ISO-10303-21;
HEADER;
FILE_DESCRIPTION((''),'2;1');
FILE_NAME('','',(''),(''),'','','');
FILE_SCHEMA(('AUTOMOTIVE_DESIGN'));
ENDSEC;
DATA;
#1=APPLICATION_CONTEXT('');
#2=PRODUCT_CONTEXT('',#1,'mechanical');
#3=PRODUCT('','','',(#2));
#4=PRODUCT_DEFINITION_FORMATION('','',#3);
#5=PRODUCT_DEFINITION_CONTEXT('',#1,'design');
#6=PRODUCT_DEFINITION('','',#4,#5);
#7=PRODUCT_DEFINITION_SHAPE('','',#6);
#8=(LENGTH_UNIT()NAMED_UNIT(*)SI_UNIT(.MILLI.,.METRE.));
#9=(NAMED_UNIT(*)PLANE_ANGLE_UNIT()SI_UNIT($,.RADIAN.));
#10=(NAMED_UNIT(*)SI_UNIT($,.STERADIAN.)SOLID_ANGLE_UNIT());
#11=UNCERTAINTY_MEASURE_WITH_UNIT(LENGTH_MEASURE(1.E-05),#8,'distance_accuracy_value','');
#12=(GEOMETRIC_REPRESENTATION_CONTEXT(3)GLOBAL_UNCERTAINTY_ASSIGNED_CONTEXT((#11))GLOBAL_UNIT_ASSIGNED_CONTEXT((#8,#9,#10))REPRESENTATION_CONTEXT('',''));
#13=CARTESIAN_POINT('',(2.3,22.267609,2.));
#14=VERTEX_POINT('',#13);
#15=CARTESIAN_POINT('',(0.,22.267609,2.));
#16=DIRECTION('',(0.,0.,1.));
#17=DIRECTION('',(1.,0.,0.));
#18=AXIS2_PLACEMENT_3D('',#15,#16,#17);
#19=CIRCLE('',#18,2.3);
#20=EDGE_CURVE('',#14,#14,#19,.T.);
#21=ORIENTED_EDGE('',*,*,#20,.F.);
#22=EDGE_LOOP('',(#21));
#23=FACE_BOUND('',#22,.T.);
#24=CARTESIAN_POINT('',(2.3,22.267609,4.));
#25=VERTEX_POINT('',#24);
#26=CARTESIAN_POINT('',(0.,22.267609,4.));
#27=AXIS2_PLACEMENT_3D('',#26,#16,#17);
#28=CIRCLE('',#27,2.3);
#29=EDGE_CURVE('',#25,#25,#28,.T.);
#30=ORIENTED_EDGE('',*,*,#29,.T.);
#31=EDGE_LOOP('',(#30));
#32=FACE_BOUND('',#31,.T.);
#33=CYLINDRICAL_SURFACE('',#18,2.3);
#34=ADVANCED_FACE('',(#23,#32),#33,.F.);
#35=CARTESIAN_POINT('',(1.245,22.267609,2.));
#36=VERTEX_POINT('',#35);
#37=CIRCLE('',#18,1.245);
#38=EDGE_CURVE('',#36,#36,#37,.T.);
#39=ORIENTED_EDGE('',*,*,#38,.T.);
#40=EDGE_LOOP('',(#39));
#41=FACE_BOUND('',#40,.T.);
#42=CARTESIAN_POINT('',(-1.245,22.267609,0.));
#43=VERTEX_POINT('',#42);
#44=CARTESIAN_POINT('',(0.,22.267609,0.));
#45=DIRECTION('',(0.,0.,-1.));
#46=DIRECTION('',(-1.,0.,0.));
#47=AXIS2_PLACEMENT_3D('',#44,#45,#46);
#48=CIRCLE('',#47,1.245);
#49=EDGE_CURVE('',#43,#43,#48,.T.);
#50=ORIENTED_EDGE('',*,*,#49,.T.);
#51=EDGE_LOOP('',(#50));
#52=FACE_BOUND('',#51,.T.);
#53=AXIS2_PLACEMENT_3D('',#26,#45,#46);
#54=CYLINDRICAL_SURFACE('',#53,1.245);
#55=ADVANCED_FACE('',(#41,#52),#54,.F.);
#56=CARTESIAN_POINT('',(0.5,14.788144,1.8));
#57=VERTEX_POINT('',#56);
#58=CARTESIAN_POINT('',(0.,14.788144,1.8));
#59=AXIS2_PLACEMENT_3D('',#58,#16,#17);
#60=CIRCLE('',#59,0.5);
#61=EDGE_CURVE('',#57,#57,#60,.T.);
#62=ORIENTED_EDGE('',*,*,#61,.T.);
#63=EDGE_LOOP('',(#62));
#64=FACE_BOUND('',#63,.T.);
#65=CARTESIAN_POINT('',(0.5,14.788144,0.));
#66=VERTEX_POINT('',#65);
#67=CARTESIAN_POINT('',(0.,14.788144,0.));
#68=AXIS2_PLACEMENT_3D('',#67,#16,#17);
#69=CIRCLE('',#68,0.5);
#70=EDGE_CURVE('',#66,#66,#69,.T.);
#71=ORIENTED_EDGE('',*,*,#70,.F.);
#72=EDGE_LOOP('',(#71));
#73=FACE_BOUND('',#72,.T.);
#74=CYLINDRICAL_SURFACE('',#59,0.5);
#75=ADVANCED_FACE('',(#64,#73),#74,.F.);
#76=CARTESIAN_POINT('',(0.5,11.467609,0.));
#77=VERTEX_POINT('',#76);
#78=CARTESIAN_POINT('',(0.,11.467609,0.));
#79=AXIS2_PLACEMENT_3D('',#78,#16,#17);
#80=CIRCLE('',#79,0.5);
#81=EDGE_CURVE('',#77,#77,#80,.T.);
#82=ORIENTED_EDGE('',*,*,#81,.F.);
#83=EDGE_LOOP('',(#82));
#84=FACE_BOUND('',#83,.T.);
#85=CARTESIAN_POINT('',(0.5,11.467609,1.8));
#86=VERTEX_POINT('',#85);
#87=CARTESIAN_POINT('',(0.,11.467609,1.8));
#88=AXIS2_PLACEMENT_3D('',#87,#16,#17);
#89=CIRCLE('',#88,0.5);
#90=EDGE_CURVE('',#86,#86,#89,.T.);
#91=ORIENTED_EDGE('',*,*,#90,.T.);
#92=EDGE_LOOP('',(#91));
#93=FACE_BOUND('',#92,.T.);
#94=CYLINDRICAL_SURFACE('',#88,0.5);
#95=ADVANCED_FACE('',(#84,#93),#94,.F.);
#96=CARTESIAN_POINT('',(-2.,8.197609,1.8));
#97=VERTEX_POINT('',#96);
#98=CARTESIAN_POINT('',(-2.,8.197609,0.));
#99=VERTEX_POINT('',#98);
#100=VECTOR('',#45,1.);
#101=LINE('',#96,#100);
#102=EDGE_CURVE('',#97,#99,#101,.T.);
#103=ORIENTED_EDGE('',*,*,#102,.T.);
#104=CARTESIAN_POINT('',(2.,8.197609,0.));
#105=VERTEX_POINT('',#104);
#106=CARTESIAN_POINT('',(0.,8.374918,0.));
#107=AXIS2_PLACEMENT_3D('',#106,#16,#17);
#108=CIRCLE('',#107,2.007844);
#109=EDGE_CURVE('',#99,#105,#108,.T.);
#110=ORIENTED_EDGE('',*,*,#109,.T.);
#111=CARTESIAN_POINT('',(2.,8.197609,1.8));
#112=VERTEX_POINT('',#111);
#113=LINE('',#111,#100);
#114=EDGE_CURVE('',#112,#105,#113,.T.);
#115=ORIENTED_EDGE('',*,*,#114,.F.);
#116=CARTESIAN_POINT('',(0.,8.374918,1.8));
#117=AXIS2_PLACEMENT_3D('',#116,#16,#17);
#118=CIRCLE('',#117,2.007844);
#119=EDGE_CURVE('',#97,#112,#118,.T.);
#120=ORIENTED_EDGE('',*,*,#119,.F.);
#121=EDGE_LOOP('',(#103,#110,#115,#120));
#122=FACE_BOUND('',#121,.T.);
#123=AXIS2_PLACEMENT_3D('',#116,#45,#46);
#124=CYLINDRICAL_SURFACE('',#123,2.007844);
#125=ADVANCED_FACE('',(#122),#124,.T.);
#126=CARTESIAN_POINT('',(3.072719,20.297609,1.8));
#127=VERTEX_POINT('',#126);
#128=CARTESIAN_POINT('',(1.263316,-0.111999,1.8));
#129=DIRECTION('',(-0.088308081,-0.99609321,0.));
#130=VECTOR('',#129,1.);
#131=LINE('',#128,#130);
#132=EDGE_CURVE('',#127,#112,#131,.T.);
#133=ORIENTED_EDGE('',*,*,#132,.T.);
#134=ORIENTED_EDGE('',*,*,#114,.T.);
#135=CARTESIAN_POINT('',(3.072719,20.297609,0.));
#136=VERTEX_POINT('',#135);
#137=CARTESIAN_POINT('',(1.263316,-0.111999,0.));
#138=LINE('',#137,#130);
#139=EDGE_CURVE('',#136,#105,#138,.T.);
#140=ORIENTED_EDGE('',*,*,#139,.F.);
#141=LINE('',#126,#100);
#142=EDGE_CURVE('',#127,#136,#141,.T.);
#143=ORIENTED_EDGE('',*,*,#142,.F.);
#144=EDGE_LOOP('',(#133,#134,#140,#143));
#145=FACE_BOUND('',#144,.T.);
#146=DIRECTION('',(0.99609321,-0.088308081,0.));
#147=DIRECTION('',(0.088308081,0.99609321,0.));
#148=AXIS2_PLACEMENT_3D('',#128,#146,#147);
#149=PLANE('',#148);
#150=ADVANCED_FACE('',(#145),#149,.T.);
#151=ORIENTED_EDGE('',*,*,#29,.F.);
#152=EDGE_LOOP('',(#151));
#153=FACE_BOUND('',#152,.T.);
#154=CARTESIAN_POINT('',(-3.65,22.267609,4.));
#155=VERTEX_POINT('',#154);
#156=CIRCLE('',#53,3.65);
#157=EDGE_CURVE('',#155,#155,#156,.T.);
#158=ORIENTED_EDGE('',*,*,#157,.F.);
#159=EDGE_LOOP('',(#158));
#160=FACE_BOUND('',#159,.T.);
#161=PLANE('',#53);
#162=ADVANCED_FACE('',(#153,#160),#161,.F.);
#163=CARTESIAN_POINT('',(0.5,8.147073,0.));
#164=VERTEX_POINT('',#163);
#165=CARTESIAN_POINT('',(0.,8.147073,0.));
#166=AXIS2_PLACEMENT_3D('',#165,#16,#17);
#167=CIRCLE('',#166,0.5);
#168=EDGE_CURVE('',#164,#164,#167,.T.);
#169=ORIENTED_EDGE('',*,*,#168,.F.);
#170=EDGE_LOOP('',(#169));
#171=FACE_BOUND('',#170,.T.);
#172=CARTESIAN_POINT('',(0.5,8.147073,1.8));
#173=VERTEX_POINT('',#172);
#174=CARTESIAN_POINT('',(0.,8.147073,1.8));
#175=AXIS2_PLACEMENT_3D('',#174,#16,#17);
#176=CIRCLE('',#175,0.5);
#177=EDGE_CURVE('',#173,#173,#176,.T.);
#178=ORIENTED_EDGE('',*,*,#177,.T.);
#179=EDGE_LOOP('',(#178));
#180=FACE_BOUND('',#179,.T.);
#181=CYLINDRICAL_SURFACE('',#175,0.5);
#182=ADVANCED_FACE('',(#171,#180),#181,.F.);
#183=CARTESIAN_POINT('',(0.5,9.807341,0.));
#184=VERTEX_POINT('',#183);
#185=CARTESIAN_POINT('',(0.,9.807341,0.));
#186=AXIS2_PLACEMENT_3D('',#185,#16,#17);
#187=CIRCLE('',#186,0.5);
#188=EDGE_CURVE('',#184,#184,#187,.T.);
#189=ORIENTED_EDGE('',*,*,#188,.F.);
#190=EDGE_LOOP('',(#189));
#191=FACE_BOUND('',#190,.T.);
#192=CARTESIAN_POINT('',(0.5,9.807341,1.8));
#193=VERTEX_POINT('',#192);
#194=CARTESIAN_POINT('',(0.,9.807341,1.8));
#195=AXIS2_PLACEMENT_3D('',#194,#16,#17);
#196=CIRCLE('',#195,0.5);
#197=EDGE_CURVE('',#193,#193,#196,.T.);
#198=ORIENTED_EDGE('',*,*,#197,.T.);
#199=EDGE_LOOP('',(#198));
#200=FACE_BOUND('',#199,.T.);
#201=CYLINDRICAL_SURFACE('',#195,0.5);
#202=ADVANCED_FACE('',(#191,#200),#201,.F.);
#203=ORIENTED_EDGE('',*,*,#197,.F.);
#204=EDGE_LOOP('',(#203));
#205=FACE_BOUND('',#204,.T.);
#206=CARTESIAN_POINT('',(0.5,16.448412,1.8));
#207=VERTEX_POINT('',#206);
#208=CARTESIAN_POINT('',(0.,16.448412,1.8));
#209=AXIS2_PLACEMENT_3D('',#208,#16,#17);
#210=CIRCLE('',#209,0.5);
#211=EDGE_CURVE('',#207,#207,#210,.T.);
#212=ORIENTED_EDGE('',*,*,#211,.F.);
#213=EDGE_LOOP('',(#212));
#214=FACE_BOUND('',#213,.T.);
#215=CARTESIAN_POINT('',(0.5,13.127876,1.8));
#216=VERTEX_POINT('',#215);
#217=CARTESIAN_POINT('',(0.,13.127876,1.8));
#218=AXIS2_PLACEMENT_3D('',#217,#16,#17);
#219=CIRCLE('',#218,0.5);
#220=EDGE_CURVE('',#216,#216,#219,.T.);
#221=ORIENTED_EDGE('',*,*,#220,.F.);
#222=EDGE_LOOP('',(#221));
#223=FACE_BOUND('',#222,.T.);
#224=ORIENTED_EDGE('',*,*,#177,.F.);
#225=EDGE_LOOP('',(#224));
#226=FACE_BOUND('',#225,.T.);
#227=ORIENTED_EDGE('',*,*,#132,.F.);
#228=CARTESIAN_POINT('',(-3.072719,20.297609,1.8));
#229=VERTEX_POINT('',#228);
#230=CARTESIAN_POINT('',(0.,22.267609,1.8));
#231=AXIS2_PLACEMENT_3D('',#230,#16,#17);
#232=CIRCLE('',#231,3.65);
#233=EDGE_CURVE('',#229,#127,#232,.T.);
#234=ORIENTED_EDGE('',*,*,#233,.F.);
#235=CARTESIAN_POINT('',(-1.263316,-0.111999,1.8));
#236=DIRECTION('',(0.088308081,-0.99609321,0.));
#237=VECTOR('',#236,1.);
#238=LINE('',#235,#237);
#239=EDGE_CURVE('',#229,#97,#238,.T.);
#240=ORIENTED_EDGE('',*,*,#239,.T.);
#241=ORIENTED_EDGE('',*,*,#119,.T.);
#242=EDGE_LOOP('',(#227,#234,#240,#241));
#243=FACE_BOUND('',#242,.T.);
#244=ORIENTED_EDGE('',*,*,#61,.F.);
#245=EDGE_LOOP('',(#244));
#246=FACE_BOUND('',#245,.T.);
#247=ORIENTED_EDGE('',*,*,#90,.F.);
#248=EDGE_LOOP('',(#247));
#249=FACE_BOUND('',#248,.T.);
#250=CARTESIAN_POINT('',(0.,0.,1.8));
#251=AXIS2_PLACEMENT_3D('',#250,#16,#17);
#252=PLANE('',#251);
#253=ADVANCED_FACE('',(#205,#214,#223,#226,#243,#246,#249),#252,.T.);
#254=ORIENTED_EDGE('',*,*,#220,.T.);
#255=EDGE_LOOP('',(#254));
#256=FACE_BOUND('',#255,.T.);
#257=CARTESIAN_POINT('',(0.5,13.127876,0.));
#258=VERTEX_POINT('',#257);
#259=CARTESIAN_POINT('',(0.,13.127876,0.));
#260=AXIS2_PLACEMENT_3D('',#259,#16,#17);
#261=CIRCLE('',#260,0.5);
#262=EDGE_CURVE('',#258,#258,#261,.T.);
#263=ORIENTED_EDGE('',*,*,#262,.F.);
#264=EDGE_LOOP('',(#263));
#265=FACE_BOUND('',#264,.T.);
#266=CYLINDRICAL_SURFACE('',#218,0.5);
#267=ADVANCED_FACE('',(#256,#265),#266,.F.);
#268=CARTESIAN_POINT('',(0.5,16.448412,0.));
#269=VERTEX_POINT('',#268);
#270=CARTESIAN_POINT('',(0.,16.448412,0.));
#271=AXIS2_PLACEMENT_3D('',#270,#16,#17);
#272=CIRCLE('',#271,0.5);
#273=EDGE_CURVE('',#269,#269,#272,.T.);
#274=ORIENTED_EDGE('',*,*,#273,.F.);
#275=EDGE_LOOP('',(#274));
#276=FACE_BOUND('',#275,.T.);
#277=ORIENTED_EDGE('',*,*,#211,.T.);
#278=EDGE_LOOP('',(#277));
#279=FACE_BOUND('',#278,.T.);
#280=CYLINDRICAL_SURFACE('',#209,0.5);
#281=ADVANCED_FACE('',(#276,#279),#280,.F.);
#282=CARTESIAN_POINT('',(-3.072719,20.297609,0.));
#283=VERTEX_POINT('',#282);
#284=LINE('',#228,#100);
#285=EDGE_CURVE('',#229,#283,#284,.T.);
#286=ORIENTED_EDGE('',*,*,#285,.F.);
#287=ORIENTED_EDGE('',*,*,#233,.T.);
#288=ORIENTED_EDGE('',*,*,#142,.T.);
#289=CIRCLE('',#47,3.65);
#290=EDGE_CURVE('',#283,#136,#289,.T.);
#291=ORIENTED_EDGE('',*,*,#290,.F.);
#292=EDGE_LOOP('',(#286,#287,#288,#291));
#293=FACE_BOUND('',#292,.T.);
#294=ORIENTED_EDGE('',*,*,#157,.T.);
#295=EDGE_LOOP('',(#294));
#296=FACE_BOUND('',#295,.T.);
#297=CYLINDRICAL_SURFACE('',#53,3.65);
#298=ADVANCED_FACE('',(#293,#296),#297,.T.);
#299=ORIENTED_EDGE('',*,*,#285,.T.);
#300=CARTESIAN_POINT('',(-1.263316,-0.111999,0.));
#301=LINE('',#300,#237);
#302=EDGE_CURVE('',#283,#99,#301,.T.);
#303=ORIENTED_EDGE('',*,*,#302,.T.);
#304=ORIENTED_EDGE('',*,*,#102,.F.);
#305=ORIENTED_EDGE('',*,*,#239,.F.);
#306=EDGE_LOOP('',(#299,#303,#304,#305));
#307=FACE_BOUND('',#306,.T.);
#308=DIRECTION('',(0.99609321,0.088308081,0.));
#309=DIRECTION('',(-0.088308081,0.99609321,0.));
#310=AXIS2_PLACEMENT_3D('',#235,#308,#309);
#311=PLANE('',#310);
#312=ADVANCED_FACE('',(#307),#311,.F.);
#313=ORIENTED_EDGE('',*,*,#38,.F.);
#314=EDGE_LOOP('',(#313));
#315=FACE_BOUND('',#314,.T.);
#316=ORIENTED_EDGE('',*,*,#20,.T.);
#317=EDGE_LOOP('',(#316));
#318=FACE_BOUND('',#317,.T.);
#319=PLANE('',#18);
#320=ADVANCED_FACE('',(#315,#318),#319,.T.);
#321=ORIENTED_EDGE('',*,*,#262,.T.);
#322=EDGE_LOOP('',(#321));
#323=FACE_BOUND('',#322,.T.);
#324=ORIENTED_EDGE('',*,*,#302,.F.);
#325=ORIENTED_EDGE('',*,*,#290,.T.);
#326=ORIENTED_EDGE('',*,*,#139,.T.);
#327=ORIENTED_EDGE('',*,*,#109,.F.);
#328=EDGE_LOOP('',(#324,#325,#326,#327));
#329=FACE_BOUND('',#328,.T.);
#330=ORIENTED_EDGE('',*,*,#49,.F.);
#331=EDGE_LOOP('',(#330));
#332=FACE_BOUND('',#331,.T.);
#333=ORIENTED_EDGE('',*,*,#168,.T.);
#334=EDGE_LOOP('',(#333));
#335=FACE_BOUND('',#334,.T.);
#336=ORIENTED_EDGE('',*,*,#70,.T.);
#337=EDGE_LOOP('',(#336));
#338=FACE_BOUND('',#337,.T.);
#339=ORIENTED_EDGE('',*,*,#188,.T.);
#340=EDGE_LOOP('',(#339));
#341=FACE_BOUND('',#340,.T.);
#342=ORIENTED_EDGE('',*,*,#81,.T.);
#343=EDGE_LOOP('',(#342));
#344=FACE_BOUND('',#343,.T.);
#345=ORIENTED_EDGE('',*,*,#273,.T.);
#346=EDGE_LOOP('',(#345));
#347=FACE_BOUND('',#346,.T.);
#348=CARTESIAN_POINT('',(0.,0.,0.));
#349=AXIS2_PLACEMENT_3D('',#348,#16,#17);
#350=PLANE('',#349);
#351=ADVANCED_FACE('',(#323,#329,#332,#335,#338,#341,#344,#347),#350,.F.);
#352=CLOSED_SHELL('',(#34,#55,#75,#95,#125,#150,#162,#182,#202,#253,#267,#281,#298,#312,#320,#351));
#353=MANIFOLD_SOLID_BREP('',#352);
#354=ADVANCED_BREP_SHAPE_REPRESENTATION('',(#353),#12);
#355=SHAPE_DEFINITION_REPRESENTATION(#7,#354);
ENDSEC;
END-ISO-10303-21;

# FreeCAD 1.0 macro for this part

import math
import FreeCAD as App
import Part
import Sketcher

V = App.Vector

doc = App.newDocument("Part")
params = doc.addObject("Spreadsheet::Sheet", "Params")
for row, (alias, value) in enumerate([
    ("sketch1_radius", "3.65 mm"),
    ("pad1_length", "1.8 mm"),
    ("sketch2_diameter", "7.3 mm"),
    ("sketch2_diameter2", "2.49 mm"),
    ("pad2_length", "4 mm"),
    ("sketch3_diameter", "4.6 mm"),
    ("sketch3_diameter2", "2.49 mm"),
    ("pocket1_length", "2 mm"),
    ("sketch4_diameter", "0.9 mm"),
    ("hole_diameter", "0.9 mm"),
    ("sketch5_diameter", "1 mm"),
    ("hole2_diameter", "1 mm"),
], start=1):
    params.set(f"A{row}", alias)
    params.set(f"B{row}", "=" + value)
    params.setAlias(f"B{row}", alias)

body = doc.addObject("PartDesign::Body", "Body")

sketch1 = body.newObject("Sketcher::SketchObject", "Sketch")
sketch1.AttachmentSupport = (doc.getObject("XY_Plane"), [""])
sketch1.MapMode = "FlatFace"
sketch1.addGeometry([
    Part.LineSegment(V(2, 8.2, 0), V(3.1, 20.3, 0)),
    Part.ArcOfCircle(Part.Circle(V(0, 22.3, 0), V(0, 0, 1), 3.6), math.radians(-147), math.radians(-33)),
    Part.LineSegment(V(-3.1, 20.3, 0), V(-2, 8.2, 0)),
    Part.ArcOfCircle(Part.Circle(V(0, 8.4, 0), V(0, 0, 1), 2), math.radians(-175), math.radians(-5)),
], False)
sketch1.addConstraint([
    Sketcher.Constraint("Coincident", 0, 2, 1, 2),
    Sketcher.Constraint("Coincident", 1, 1, 2, 1),
    Sketcher.Constraint("Tangent", 2, 2, 3, 1),
    Sketcher.Constraint("Tangent", 3, 2, 0, 1),
    Sketcher.Constraint("Symmetric", 0, 2, 1, 1, -2),
    Sketcher.Constraint("PointOnObject", 3, 3, -2),
    Sketcher.Constraint("Radius", 1, 3.65),
    Sketcher.Constraint("DistanceX", 2, 2, -1, 1, 2.0),
    Sketcher.Constraint("DistanceY", 2, 2, 1, 1, 12.1),
    Sketcher.Constraint("DistanceY", 0, 2, 1, 3, 1.97),
    Sketcher.Constraint("DistanceY", -1, 1, 1, 3, 22.267609),
])
sketch1.setExpression("Constraints[6]", "Params.sketch1_radius")
pad1 = body.newObject("PartDesign::Pad", "Pad")
pad1.Profile = sketch1
pad1.setExpression("Length", "Params.pad1_length")

sketch2 = body.newObject("Sketcher::SketchObject", "Sketch001")
sketch2.AttachmentSupport = (doc.getObject("XY_Plane"), [""])
sketch2.MapMode = "FlatFace"
sketch2.addGeometry([
    Part.Circle(V(0, 22.3, 0), V(0, 0, 1), 3.6),
    Part.Circle(V(0, 22.3, 0), V(0, 0, 1), 1.2),
], False)
sketch2.addConstraint([
    Sketcher.Constraint("Coincident", 1, 3, 0, 3),
    Sketcher.Constraint("PointOnObject", 0, 3, -2),
    Sketcher.Constraint("Diameter", 0, 7.3),
    Sketcher.Constraint("Diameter", 1, 2.49),
    Sketcher.Constraint("DistanceY", -1, 1, 0, 3, 22.267609),
])
sketch2.setExpression("Constraints[2]", "Params.sketch2_diameter")
sketch2.setExpression("Constraints[3]", "Params.sketch2_diameter2")
pad2 = body.newObject("PartDesign::Pad", "Pad001")
pad2.Profile = sketch2
pad2.setExpression("Length", "Params.pad2_length")

sketch3 = body.newObject("Sketcher::SketchObject", "Sketch002")
sketch3.AttachmentSupport = (doc.getObject("XY_Plane"), [""])
sketch3.MapMode = "FlatFace"
sketch3.AttachmentOffset = App.Placement(V(0, 0, 2), App.Rotation())
sketch3.addGeometry([
    Part.Circle(V(0, 22.3, 0), V(0, 0, 1), 2.3),
    Part.Circle(V(0, 22.3, 0), V(0, 0, 1), 1.2),
], False)
sketch3.addConstraint([
    Sketcher.Constraint("Coincident", 1, 3, 0, 3),
    Sketcher.Constraint("PointOnObject", 0, 3, -2),
    Sketcher.Constraint("Diameter", 0, 4.6),
    Sketcher.Constraint("Diameter", 1, 2.49),
    Sketcher.Constraint("DistanceY", -1, 1, 0, 3, 22.267609),
])
sketch3.setExpression("Constraints[2]", "Params.sketch3_diameter")
sketch3.setExpression("Constraints[3]", "Params.sketch3_diameter2")
pocket1 = body.newObject("PartDesign::Pocket", "Pocket")
pocket1.Profile = sketch3
pocket1.setExpression("Length", "Params.pocket1_length")
pocket1.Reversed = True

sketch4 = body.newObject("Sketcher::SketchObject", "Sketch003")
sketch4.AttachmentSupport = (doc.getObject("XY_Plane"), [""])
sketch4.MapMode = "FlatFace"
sketch4.AttachmentOffset = App.Placement(V(0, 0, 1.8), App.Rotation())
sketch4.addGeometry(Part.Circle(V(0, 8.15, 0), V(0, 0, 1), 0.45), False)
sketch4.addConstraint([
    Sketcher.Constraint("PointOnObject", 0, 3, -2),
    Sketcher.Constraint("Diameter", 0, 0.9),
    Sketcher.Constraint("DistanceY", -1, 1, 0, 3, 8.147073),
])
sketch4.setExpression("Constraints[1]", "Params.sketch4_diameter")
doc.recompute()
hole = body.newObject("PartDesign::Hole", "Hole")
hole.Profile = sketch4
hole.ThreadType = "None"
hole.setExpression("Diameter", "Params.hole_diameter")
hole.DepthType = "ThroughAll"

sketch5 = body.newObject("Sketcher::SketchObject", "Sketch004")
sketch5.AttachmentSupport = (doc.getObject("XY_Plane"), [""])
sketch5.MapMode = "FlatFace"
sketch5.AttachmentOffset = App.Placement(V(0, 0, 1.8), App.Rotation())
sketch5.addGeometry([
    Part.Circle(V(0, 8.1, 0), V(0, 0, 1), 0.5),
    Part.Circle(V(0, 9.8, 0), V(0, 0, 1), 0.5),
    Part.Circle(V(0, 11.5, 0), V(0, 0, 1), 0.5),
    Part.Circle(V(0, 13.1, 0), V(0, 0, 1), 0.5),
    Part.Circle(V(0, 14.8, 0), V(0, 0, 1), 0.5),
    Part.Circle(V(0, 16.4, 0), V(0, 0, 1), 0.5),
], False)
sketch5.addConstraint([
    Sketcher.Constraint("Equal", 0, 1),
    Sketcher.Constraint("Equal", 1, 2),
    Sketcher.Constraint("Equal", 2, 3),
    Sketcher.Constraint("Equal", 3, 4),
    Sketcher.Constraint("Equal", 4, 5),
    Sketcher.Constraint("PointOnObject", 0, 3, -2),
    Sketcher.Constraint("PointOnObject", 1, 3, -2),
    Sketcher.Constraint("PointOnObject", 2, 3, -2),
    Sketcher.Constraint("PointOnObject", 3, 3, -2),
    Sketcher.Constraint("PointOnObject", 4, 3, -2),
    Sketcher.Constraint("PointOnObject", 5, 3, -2),
    Sketcher.Constraint("Diameter", 0, 1.0),
    Sketcher.Constraint("DistanceY", -1, 1, 1, 3, 9.807341),
    Sketcher.Constraint("DistanceY", -1, 1, 2, 3, 11.467609),
    Sketcher.Constraint("DistanceY", -1, 1, 5, 3, 16.448412),
    Sketcher.Constraint("DistanceY", 0, 3, 4, 3, 6.641071),
    Sketcher.Constraint("DistanceY", 0, 3, 5, 3, 8.301338),
    Sketcher.Constraint("DistanceY", -1, 1, 3, 3, 13.127876),
])
sketch5.setExpression("Constraints[11]", "Params.sketch5_diameter")
doc.recompute()
hole2 = body.newObject("PartDesign::Hole", "Hole001")
hole2.Profile = sketch5
hole2.ThreadType = "None"
hole2.setExpression("Diameter", "Params.hole2_diameter")
hole2.DepthType = "ThroughAll"

doc.recompute()
